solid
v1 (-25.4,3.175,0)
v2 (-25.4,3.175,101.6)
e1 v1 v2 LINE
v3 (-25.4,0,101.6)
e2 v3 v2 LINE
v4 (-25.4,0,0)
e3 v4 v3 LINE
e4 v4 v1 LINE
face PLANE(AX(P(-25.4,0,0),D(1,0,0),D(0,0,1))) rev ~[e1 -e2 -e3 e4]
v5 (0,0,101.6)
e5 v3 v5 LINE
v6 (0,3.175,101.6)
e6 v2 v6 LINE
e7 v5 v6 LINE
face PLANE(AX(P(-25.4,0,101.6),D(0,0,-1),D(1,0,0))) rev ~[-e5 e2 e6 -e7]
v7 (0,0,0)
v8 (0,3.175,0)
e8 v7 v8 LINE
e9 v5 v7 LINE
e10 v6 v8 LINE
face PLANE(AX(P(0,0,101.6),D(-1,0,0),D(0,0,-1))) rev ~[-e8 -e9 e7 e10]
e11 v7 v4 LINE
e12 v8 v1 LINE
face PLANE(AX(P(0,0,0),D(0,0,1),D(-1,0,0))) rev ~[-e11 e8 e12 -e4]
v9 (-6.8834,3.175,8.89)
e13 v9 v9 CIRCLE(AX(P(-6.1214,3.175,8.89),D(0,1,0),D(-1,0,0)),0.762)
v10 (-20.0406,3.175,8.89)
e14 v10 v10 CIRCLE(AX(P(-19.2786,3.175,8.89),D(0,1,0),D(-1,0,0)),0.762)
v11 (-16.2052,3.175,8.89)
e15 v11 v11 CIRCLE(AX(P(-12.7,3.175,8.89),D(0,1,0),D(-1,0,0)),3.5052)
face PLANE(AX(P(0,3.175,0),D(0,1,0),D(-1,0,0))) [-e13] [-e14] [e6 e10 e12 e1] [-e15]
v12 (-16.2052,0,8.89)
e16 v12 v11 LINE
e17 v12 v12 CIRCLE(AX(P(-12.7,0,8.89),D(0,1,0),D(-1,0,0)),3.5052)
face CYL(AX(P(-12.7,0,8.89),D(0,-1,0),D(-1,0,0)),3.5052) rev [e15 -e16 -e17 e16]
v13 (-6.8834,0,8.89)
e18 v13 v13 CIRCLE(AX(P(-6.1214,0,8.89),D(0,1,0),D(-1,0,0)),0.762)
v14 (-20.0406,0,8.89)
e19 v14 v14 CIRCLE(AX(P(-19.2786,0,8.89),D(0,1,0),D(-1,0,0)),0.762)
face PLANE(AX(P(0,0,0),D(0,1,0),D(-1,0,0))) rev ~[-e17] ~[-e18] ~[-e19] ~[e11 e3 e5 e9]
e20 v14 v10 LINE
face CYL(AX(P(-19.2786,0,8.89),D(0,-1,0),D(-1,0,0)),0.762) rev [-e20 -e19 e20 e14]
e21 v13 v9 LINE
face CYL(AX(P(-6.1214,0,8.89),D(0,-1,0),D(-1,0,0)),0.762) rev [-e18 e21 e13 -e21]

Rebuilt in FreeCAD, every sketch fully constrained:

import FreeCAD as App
import Part
import Sketcher
from FreeCAD import Vector
Q = App.Units.Quantity

doc = App.newDocument("Part")
body = doc.addObject("PartDesign::Body", "Body")

# Sketch on XZ plane
sketch1 = doc.addObject("Sketcher::SketchObject", "Sketch")
body.addObject(sketch1)
sketch1.AttachmentSupport = (doc.XZ_Plane, [""])
sketch1.MapMode = "FlatFace"
sketch1.addGeometry(Part.LineSegment(Vector(0, 101.6, 0), Vector(0, 0, 0)), False)
sketch1.addGeometry(Part.LineSegment(Vector(0, 0, 0), Vector(-25.4, 0, 0)), False)
sketch1.addGeometry(Part.LineSegment(Vector(-25.4, 0, 0), Vector(-25.4, 101.6, 0)), False)
sketch1.addGeometry(Part.LineSegment(Vector(-25.4, 101.6, 0), Vector(0, 101.6, 0)), False)
sketch1.addGeometry(Part.Circle(Vector(-6.1214, 8.89, 0), Vector(0, 0, 1), 0.762), False)
sketch1.addGeometry(Part.Circle(Vector(-12.7, 8.89, 0), Vector(0, 0, 1), 3.5052), False)
sketch1.addGeometry(Part.Circle(Vector(-19.2786, 8.89, 0), Vector(0, 0, 1), 0.762), False)
sketch1.addConstraint(Sketcher.Constraint("Coincident", 0, 2, 1, 1))
sketch1.addConstraint(Sketcher.Constraint("Coincident", 1, 2, 2, 1))
sketch1.addConstraint(Sketcher.Constraint("Coincident", 2, 2, 3, 1))
sketch1.addConstraint(Sketcher.Constraint("Coincident", 3, 2, 0, 1))
sketch1.addConstraint(Sketcher.Constraint("Vertical", 0))
sketch1.addConstraint(Sketcher.Constraint("Horizontal", 1))
sketch1.addConstraint(Sketcher.Constraint("Vertical", 2))
sketch1.addConstraint(Sketcher.Constraint("Horizontal", 3))
sketch1.addConstraint(Sketcher.Constraint("Coincident", 0, 2, -1, 1))
sketch1.addConstraint(Sketcher.Constraint("Equal", 4, 6))
sketch1.addConstraint(Sketcher.Constraint("Horizontal", 4, 3, 5, 3))
sketch1.addConstraint(Sketcher.Constraint("Horizontal", 5, 3, 6, 3))
sketch1.addConstraint(Sketcher.Constraint("Diameter", 4, Q("0.06 in")))
sketch1.addConstraint(Sketcher.Constraint("DistanceX", 1, 2, 1, 1, Q("1 in")))
sketch1.addConstraint(Sketcher.Constraint("DistanceY", 0, 2, 0, 1, Q("4 in")))
sketch1.addConstraint(Sketcher.Constraint("Diameter", 5, Q("0.276 in")))
sketch1.addConstraint(Sketcher.Constraint("DistanceX", 5, 3, -1, 1, Q("0.5 in")))
sketch1.addConstraint(Sketcher.Constraint("DistanceY", -1, 1, 4, 3, Q("0.35 in")))
sketch1.addConstraint(Sketcher.Constraint("DistanceX", 5, 3, 4, 3, Q("0.259 in")))
sketch1.addConstraint(Sketcher.Constraint("DistanceX", 6, 3, 5, 3, Q("0.259 in")))
pad1 = doc.addObject("PartDesign::Pad", "Pad")
body.addObject(pad1)
pad1.Profile = sketch1
pad1.Length = Q("0.125 in")
pad1.Reversed = True

doc.recompute()
